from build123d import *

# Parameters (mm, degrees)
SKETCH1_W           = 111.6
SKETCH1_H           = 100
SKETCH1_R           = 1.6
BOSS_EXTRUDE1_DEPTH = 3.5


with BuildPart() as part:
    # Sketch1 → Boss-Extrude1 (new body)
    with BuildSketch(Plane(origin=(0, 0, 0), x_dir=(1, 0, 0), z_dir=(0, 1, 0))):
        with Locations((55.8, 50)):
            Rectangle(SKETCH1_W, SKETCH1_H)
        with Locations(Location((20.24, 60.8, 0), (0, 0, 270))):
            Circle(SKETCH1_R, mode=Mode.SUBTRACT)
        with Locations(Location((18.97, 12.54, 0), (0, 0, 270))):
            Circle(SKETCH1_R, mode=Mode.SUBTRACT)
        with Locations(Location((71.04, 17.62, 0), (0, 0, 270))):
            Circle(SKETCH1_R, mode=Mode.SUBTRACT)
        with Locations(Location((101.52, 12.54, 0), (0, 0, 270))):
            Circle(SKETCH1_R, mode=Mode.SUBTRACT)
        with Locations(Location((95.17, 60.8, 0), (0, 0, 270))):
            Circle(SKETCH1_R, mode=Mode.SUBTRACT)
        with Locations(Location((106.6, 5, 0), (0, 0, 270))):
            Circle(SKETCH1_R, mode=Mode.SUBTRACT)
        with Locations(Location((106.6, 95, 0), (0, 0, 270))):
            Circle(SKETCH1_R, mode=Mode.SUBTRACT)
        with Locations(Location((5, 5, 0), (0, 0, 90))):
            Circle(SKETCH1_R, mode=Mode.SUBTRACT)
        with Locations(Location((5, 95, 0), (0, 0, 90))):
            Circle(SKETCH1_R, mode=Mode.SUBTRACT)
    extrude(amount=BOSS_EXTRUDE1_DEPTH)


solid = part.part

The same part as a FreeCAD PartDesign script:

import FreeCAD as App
import Part
import Sketcher
from FreeCAD import Vector
Q = App.Units.Quantity


def add_polygon(sketch, points):
    """Adds a closed chain of lines whose ends are joined by coincident constraints."""
    first, n = sketch.GeometryCount, len(points)
    for a, b in zip(points, points[1:] + points[:1]):
        sketch.addGeometry(Part.LineSegment(App.Vector(*a, 0), App.Vector(*b, 0)), False)
    for i in range(n):
        sketch.addConstraint(Sketcher.Constraint("Coincident", first + i, 2, first + (i + 1) % n, 1))

doc = App.newDocument("Part")
params = doc.addObject("Spreadsheet::Sheet", "Params")
for row, (alias, value) in enumerate([
    ("sketch1_diameter", "3.2 mm"),
    ("sketch1_height", "100 mm"),
    ("sketch1_width", "111.6 mm"),
    ("pad1_length", "3.5 mm"),
], start=1):
    params.set(f"A{row}", alias)
    params.set(f"B{row}", "=" + value)
    params.setAlias(f"B{row}", alias)

body = doc.addObject("PartDesign::Body", "Body")

# Sketch on XZ plane
sketch1 = doc.addObject("Sketcher::SketchObject", "Sketch")
body.addObject(sketch1)
sketch1.AttachmentSupport = (doc.XZ_Plane, [""])
sketch1.MapMode = "FlatFace"
add_polygon(sketch1, [(0, -100), (0, 0), (111.6, 0), (111.6, -100)])  # lines 0-3
sketch1.addGeometry(Part.Circle(Vector(5, -5, 0), Vector(0, 0, 1), 1.6), False)  # 4
sketch1.addGeometry(Part.Circle(Vector(19, -12.5, 0), Vector(0, 0, 1), 1.6), False)  # 5
sketch1.addGeometry(Part.Circle(Vector(71, -17.6, 0), Vector(0, 0, 1), 1.6), False)  # 6
sketch1.addGeometry(Part.Circle(Vector(106.6, -5, 0), Vector(0, 0, 1), 1.6), False)  # 7
sketch1.addGeometry(Part.Circle(Vector(101.5, -12.5, 0), Vector(0, 0, 1), 1.6), False)  # 8
sketch1.addGeometry(Part.Circle(Vector(20.2, -60.8, 0), Vector(0, 0, 1), 1.6), False)  # 9
sketch1.addGeometry(Part.Circle(Vector(5, -95, 0), Vector(0, 0, 1), 1.6), False)  # 10
sketch1.addGeometry(Part.Circle(Vector(95.2, -60.8, 0), Vector(0, 0, 1), 1.6), False)  # 11
sketch1.addGeometry(Part.Circle(Vector(106.6, -95, 0), Vector(0, 0, 1), 1.6), False)  # 12
sketch1.addConstraint([
    Sketcher.Constraint("Vertical", 0),
    Sketcher.Constraint("Horizontal", 1),
    Sketcher.Constraint("Vertical", 2),
    Sketcher.Constraint("Horizontal", 3),
    Sketcher.Constraint("Coincident", 0, 2, -1, 1),
    Sketcher.Constraint("Equal", 4, 5),
    Sketcher.Constraint("Equal", 5, 6),
    Sketcher.Constraint("Equal", 6, 7),
    Sketcher.Constraint("Equal", 7, 8),
    Sketcher.Constraint("Equal", 8, 9),
    Sketcher.Constraint("Equal", 9, 10),
    Sketcher.Constraint("Equal", 10, 11),
    Sketcher.Constraint("Equal", 11, 12),
    Sketcher.Constraint("Horizontal", 4, 3, 7, 3),
    Sketcher.Constraint("Horizontal", 5, 3, 8, 3),
    Sketcher.Constraint("Horizontal", 9, 3, 11, 3),
    Sketcher.Constraint("Horizontal", 10, 3, 12, 3),
    Sketcher.Constraint("Vertical", 4, 3, 10, 3),
    Sketcher.Constraint("Vertical", 7, 3, 12, 3),
    Sketcher.Constraint("Diameter", 4, Q("3.2 mm")),
    Sketcher.Constraint("DistanceY", 0, 1, 0, 2, Q("100 mm")),
    Sketcher.Constraint("DistanceX", 1, 1, 1, 2, Q("111.6 mm")),
    Sketcher.Constraint("DistanceX", -1, 1, 4, 3, Q("5 mm")),
    Sketcher.Constraint("DistanceY", 4, 3, -1, 1, Q("5 mm")),
    Sketcher.Constraint("DistanceY", 10, 3, -1, 1, Q("95 mm")),
    Sketcher.Constraint("DistanceX", 7, 3, 1, 2, Q("5 mm")),
    Sketcher.Constraint("DistanceY", 9, 3, -1, 1, Q("60.8 mm")),
    Sketcher.Constraint("DistanceX", 9, 3, 6, 3, Q("50.8 mm")),
    Sketcher.Constraint("DistanceX", 5, 3, 11, 3, Q("76.2 mm")),
    Sketcher.Constraint("DistanceX", -1, 1, 5, 3, Q("18.97 mm")),
    Sketcher.Constraint("DistanceY", 5, 3, -1, 1, Q("12.54 mm")),
    Sketcher.Constraint("DistanceX", -1, 1, 6, 3, Q("71.04 mm")),
    Sketcher.Constraint("DistanceY", 6, 3, -1, 1, Q("17.62 mm")),
    Sketcher.Constraint("DistanceX", -1, 1, 8, 3, Q("101.52 mm")),
])
sketch1.setExpression("Constraints[23]", "Params.sketch1_diameter")
sketch1.setExpression("Constraints[24]", "Params.sketch1_height")
sketch1.setExpression("Constraints[25]", "Params.sketch1_width")
pad1 = doc.addObject("PartDesign::Pad", "Pad")
body.addObject(pad1)
pad1.Profile = sketch1
pad1.setExpression("Length", "Params.pad1_length")
pad1.Reversed = True

doc.recompute()
